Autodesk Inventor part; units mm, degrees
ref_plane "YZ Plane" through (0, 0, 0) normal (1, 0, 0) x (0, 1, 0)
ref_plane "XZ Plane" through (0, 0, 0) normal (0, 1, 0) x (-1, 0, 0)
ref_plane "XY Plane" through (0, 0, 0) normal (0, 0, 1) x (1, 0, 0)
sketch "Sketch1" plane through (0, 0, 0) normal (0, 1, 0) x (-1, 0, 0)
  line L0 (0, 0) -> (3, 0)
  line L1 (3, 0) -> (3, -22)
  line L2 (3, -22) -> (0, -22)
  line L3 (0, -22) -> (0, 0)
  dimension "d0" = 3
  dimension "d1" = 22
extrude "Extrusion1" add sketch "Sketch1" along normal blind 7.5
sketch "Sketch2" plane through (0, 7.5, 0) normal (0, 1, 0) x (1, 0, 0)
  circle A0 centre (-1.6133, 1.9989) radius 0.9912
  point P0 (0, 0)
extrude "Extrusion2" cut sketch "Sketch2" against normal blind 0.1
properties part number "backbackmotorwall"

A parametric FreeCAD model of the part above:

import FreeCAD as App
import Part
import Sketcher
Q = App.Units.Quantity


def add_polygon(sketch, points):
    """Adds a closed chain of lines whose ends are joined by coincident constraints."""
    first, n = sketch.GeometryCount, len(points)
    for a, b in zip(points, points[1:] + points[:1]):
        sketch.addGeometry(Part.LineSegment(App.Vector(*a, 0), App.Vector(*b, 0)), False)
    for i in range(n):
        sketch.addConstraint(Sketcher.Constraint("Coincident", first + i, 2, first + (i + 1) % n, 1))

doc = App.newDocument("Part")
body = doc.addObject("PartDesign::Body", "Body")

# Sketch on XZ plane
sketch1 = body.newObject("Sketcher::SketchObject", "Sketch")
sketch1.AttachmentSupport = (doc.getObject("XZ_Plane"), [""])
sketch1.MapMode = "FlatFace"
add_polygon(sketch1, [(-3, 0), (0, 0), (0, -22), (-3, -22)])  # lines 0-3
sketch1.addConstraint(Sketcher.Constraint("Horizontal", 0))
sketch1.addConstraint(Sketcher.Constraint("Vertical", 1))
sketch1.addConstraint(Sketcher.Constraint("Horizontal", 2))
sketch1.addConstraint(Sketcher.Constraint("Vertical", 3))
sketch1.addConstraint(Sketcher.Constraint("Coincident", 0, 2, -1, 1))
sketch1.addConstraint(Sketcher.Constraint("DistanceX", 0, 1, 0, 2, Q("3 mm")))
sketch1.addConstraint(Sketcher.Constraint("DistanceY", 1, 2, 1, 1, Q("22 mm")))
pad1 = body.newObject("PartDesign::Pad", "Pad")
pad1.Profile = sketch1
pad1.Length = 7.5
pad1.Reversed = True

# Sketch on XZ plane
sketch2 = body.newObject("Sketcher::SketchObject", "Sketch001")
sketch2.AttachmentSupport = (doc.getObject("XZ_Plane"), [""])
sketch2.MapMode = "FlatFace"
sketch2.AttachmentOffset = App.Placement(App.Vector(0, 0, -7.5), App.Rotation())
sketch2.addGeometry(Part.Circle(App.Vector(-1.6133, -1.9989, 0), App.Vector(0, 0, 1), 0.9912), False)
sketch2.addConstraint(Sketcher.Constraint("Diameter", 0, Q("1.9824 mm")))
sketch2.addConstraint(Sketcher.Constraint("DistanceY", 0, 3, -1, 1, Q("1.999 mm")))
sketch2.addConstraint(Sketcher.Constraint("DistanceX", 0, 3, -1, 1, Q("1.6133 mm")))
pocket1 = body.newObject("PartDesign::Pocket", "Pocket")
pocket1.Profile = sketch2
pocket1.Length = 0.1
pocket1.Reversed = True

doc.recompute()
